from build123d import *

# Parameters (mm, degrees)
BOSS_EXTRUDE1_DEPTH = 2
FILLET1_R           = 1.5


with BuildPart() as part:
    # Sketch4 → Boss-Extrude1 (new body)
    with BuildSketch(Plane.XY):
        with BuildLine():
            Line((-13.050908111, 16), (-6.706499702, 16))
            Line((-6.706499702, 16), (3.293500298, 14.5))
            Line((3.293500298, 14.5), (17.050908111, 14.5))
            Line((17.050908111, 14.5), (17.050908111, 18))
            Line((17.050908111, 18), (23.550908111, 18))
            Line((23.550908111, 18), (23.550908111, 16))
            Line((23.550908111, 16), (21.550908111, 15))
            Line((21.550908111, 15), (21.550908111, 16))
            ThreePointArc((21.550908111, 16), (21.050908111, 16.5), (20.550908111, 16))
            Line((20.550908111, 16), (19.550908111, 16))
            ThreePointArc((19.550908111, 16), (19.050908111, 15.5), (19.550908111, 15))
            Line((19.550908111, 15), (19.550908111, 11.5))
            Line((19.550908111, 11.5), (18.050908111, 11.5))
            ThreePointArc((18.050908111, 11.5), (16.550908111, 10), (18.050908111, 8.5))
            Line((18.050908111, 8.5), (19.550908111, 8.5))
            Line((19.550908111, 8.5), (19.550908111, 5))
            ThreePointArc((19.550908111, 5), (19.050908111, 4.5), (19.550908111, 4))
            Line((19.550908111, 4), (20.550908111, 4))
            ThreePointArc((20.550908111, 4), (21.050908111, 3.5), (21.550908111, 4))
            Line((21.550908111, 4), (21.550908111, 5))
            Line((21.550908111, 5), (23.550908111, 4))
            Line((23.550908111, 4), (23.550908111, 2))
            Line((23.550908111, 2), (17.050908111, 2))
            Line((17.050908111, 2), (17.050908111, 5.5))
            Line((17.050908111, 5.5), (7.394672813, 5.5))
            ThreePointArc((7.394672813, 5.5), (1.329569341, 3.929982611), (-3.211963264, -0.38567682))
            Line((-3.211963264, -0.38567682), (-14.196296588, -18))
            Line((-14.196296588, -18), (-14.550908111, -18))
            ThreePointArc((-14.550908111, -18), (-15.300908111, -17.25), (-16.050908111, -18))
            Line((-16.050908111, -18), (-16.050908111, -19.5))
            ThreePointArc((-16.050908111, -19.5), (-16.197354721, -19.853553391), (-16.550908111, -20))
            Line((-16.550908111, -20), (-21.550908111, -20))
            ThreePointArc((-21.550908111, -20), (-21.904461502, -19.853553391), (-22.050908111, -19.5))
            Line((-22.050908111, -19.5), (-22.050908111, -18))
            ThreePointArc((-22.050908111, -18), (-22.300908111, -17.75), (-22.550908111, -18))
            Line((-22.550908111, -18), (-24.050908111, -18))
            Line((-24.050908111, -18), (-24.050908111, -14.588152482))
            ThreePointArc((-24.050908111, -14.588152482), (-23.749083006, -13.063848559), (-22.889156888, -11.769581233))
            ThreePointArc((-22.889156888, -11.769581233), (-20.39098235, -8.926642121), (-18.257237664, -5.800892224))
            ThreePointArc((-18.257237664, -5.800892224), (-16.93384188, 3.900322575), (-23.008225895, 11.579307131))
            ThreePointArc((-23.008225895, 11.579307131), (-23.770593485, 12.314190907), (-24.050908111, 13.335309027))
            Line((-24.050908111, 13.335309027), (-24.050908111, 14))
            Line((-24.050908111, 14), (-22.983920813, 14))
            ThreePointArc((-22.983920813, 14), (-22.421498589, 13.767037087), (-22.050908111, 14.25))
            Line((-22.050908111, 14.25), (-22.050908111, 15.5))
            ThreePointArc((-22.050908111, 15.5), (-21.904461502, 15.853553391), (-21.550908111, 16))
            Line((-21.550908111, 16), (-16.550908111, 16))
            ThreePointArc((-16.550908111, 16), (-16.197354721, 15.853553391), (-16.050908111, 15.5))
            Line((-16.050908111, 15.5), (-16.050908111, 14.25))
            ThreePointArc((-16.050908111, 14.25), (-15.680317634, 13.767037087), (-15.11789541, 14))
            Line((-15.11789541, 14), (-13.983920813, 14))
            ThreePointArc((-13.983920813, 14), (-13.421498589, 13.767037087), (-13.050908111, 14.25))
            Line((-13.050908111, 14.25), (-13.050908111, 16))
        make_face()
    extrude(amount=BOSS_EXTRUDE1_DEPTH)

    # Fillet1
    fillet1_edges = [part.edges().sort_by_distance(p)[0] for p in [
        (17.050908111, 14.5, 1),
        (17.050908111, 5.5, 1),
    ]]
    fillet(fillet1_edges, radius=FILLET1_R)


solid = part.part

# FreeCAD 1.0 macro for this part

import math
import FreeCAD as App
import Part
import Sketcher

V = App.Vector
Q = App.Units.Quantity


def edges_at(feature, points):
    """Names of the edges that pass closest to the given points."""
    edges = feature.Shape.Edges
    near = lambda p: min(range(len(edges)), key=lambda i: edges[i].distToShape(Part.Vertex(*p))[0])
    return sorted({f"Edge{near(p) + 1}" for p in points})

doc = App.newDocument("Part")
body = doc.addObject("PartDesign::Body", "Body")

# Sketch on XY plane
sketch1 = doc.addObject("Sketcher::SketchObject", "Sketch")
body.addObject(sketch1)
sketch1.AttachmentSupport = (doc.XY_Plane, [""])
sketch1.MapMode = "FlatFace"
sketch1.addGeometry(Part.LineSegment(V(-6.71, 16, 0), V(-13.05, 16, 0)), False)
sketch1.addGeometry(Part.LineSegment(V(-13.05, 16, 0), V(-13.05, 14.25, 0)), False)
sketch1.addGeometry(Part.ArcOfCircle(Part.Circle(V(-13.55, 14.25, 0), V(0, 0, 1), 0.5), math.radians(-150), math.radians(0)), False)
sketch1.addGeometry(Part.LineSegment(V(-13.98, 14, 0), V(-15.12, 14, 0)), False)
sketch1.addGeometry(Part.ArcOfCircle(Part.Circle(V(-15.55, 14.25, 0), V(0, 0, 1), 0.5), math.radians(180), math.radians(330)), False)
sketch1.addGeometry(Part.LineSegment(V(-16.05, 14.25, 0), V(-16.05, 15.5, 0)), False)
sketch1.addGeometry(Part.ArcOfCircle(Part.Circle(V(-16.55, 15.5, 0), V(0, 0, 1), 0.5), math.radians(0), math.radians(90)), False)
sketch1.addGeometry(Part.LineSegment(V(-16.55, 16, 0), V(-21.55, 16, 0)), False)
sketch1.addGeometry(Part.ArcOfCircle(Part.Circle(V(-21.55, 15.5, 0), V(0, 0, 1), 0.5), math.radians(90), math.radians(180)), False)
sketch1.addGeometry(Part.LineSegment(V(-22.05, 15.5, 0), V(-22.05, 14.25, 0)), False)
sketch1.addGeometry(Part.ArcOfCircle(Part.Circle(V(-22.55, 14.25, 0), V(0, 0, 1), 0.5), math.radians(-150), math.radians(0)), False)
sketch1.addGeometry(Part.LineSegment(V(-22.98, 14, 0), V(-24.05, 14, 0)), False)
sketch1.addGeometry(Part.LineSegment(V(-24.05, 14, 0), V(-24.05, 13.34, 0)), False)
sketch1.addGeometry(Part.ArcOfCircle(Part.Circle(V(-22.05, 13.34, 0), V(0, 0, 1), 2), math.radians(180), math.radians(241)), False)
sketch1.addGeometry(Part.ArcOfCircle(Part.Circle(V(-28.99, 0.6, 0), V(0, 0, 1), 12.5), math.radians(-31), math.radians(61)), False)
sketch1.addGeometry(Part.ArcOfCircle(Part.Circle(V(-44.92, 10.11, 0), V(0, 0, 1), 31.05), math.radians(-44.8), math.radians(-30.82)), False)
sketch1.addGeometry(Part.ArcOfCircle(Part.Circle(V(-20.05, -14.59, 0), V(0, 0, 1), 4), math.radians(135), math.radians(180)), False)
sketch1.addGeometry(Part.LineSegment(V(-24.05, -14.59, 0), V(-24.05, -18, 0)), False)
sketch1.addGeometry(Part.LineSegment(V(-24.05, -18, 0), V(-22.55, -18, 0)), False)
sketch1.addGeometry(Part.ArcOfCircle(Part.Circle(V(-22.3, -18, 0), V(0, 0, 1), 0.25), math.radians(0), math.radians(180)), False)
sketch1.addGeometry(Part.LineSegment(V(-22.05, -18, 0), V(-22.05, -19.5, 0)), False)
sketch1.addGeometry(Part.ArcOfCircle(Part.Circle(V(-21.55, -19.5, 0), V(0, 0, 1), 0.5), math.radians(180), math.radians(270)), False)
sketch1.addGeometry(Part.LineSegment(V(-21.55, -20, 0), V(-16.55, -20, 0)), False)
sketch1.addGeometry(Part.ArcOfCircle(Part.Circle(V(-16.55, -19.5, 0), V(0, 0, 1), 0.5), math.radians(-90), math.radians(0)), False)
sketch1.addGeometry(Part.LineSegment(V(-16.05, -19.5, 0), V(-16.05, -18, 0)), False)
sketch1.addGeometry(Part.ArcOfCircle(Part.Circle(V(-15.3, -18, 0), V(0, 0, 1), 0.75), math.radians(0), math.radians(180)), False)
sketch1.addGeometry(Part.LineSegment(V(-14.55, -18, 0), V(-14.2, -18, 0)), False)
sketch1.addGeometry(Part.LineSegment(V(-14.2, -18, 0), V(-3.21, -0.39, 0)), False)
sketch1.addGeometry(Part.ArcOfCircle(Part.Circle(V(7.39, -7, 0), V(0, 0, 1), 12.5), math.radians(90), math.radians(148)), False)
sketch1.addGeometry(Part.LineSegment(V(7.39, 5.5, 0), V(17.05, 5.5, 0)), False)
sketch1.addGeometry(Part.LineSegment(V(17.05, 5.5, 0), V(17.05, 2, 0)), False)
sketch1.addGeometry(Part.LineSegment(V(17.05, 2, 0), V(23.55, 2, 0)), False)
sketch1.addGeometry(Part.LineSegment(V(23.55, 2, 0), V(23.55, 4, 0)), False)
sketch1.addGeometry(Part.LineSegment(V(23.55, 4, 0), V(21.55, 5, 0)), False)
sketch1.addGeometry(Part.LineSegment(V(21.55, 5, 0), V(21.55, 4, 0)), False)
sketch1.addGeometry(Part.ArcOfCircle(Part.Circle(V(21.05, 4, 0), V(0, 0, 1), 0.5), math.radians(180), math.radians(360)), False)
sketch1.addGeometry(Part.LineSegment(V(20.55, 4, 0), V(19.55, 4, 0)), False)
sketch1.addGeometry(Part.ArcOfCircle(Part.Circle(V(19.55, 4.5, 0), V(0, 0, 1), 0.5), math.radians(90), math.radians(270)), False)
sketch1.addGeometry(Part.LineSegment(V(19.55, 5, 0), V(19.55, 8.5, 0)), False)
sketch1.addGeometry(Part.LineSegment(V(19.55, 8.5, 0), V(18.05, 8.5, 0)), False)
sketch1.addGeometry(Part.ArcOfCircle(Part.Circle(V(18.05, 10, 0), V(0, 0, 1), 1.5), math.radians(90), math.radians(270)), False)
sketch1.addGeometry(Part.LineSegment(V(18.05, 11.5, 0), V(19.55, 11.5, 0)), False)
sketch1.addGeometry(Part.LineSegment(V(19.55, 11.5, 0), V(19.55, 15, 0)), False)
sketch1.addGeometry(Part.ArcOfCircle(Part.Circle(V(19.55, 15.5, 0), V(0, 0, 1), 0.5), math.radians(90), math.radians(270)), False)
sketch1.addGeometry(Part.LineSegment(V(19.55, 16, 0), V(20.55, 16, 0)), False)
sketch1.addGeometry(Part.ArcOfCircle(Part.Circle(V(21.05, 16, 0), V(0, 0, 1), 0.5), math.radians(0), math.radians(180)), False)
sketch1.addGeometry(Part.LineSegment(V(21.55, 16, 0), V(21.55, 15, 0)), False)
sketch1.addGeometry(Part.LineSegment(V(21.55, 15, 0), V(23.55, 16, 0)), False)
sketch1.addGeometry(Part.LineSegment(V(23.55, 16, 0), V(23.55, 18, 0)), False)
sketch1.addGeometry(Part.LineSegment(V(23.55, 18, 0), V(17.05, 18, 0)), False)
sketch1.addGeometry(Part.LineSegment(V(17.05, 18, 0), V(17.05, 14.5, 0)), False)
sketch1.addGeometry(Part.LineSegment(V(17.05, 14.5, 0), V(3.29, 14.5, 0)), False)
sketch1.addGeometry(Part.LineSegment(V(3.29, 14.5, 0), V(-6.71, 16, 0)), False)
sketch1.addConstraint(Sketcher.Constraint("Coincident", 0, 2, 1, 1))
sketch1.addConstraint(Sketcher.Constraint("Tangent", 1, 2, 2, 2))
sketch1.addConstraint(Sketcher.Constraint("Coincident", 2, 1, 3, 1))
sketch1.addConstraint(Sketcher.Constraint("Coincident", 3, 2, 4, 2))
sketch1.addConstraint(Sketcher.Constraint("Tangent", 4, 1, 5, 1))
sketch1.addConstraint(Sketcher.Constraint("Tangent", 5, 2, 6, 1))
sketch1.addConstraint(Sketcher.Constraint("Tangent", 6, 2, 7, 1))
sketch1.addConstraint(Sketcher.Constraint("Tangent", 7, 2, 8, 1))
sketch1.addConstraint(Sketcher.Constraint("Tangent", 8, 2, 9, 1))
sketch1.addConstraint(Sketcher.Constraint("Tangent", 9, 2, 10, 2))
sketch1.addConstraint(Sketcher.Constraint("Coincident", 10, 1, 11, 1))
sketch1.addConstraint(Sketcher.Constraint("Coincident", 11, 2, 12, 1))
sketch1.addConstraint(Sketcher.Constraint("Tangent", 12, 2, 13, 1))
sketch1.addConstraint(Sketcher.Constraint("Tangent", 13, 2, 14, 2))
sketch1.addConstraint(Sketcher.Constraint("Tangent", 14, 1, 15, 2))
sketch1.addConstraint(Sketcher.Constraint("Tangent", 15, 1, 16, 1))
sketch1.addConstraint(Sketcher.Constraint("Tangent", 16, 2, 17, 1))
sketch1.addConstraint(Sketcher.Constraint("Coincident", 17, 2, 18, 1))
sketch1.addConstraint(Sketcher.Constraint("Coincident", 18, 2, 19, 2))
sketch1.addConstraint(Sketcher.Constraint("Tangent", 19, 1, 20, 1))
sketch1.addConstraint(Sketcher.Constraint("Tangent", 20, 2, 21, 1))
sketch1.addConstraint(Sketcher.Constraint("Tangent", 21, 2, 22, 1))
sketch1.addConstraint(Sketcher.Constraint("Tangent", 22, 2, 23, 1))
sketch1.addConstraint(Sketcher.Constraint("Tangent", 23, 2, 24, 1))
sketch1.addConstraint(Sketcher.Constraint("Tangent", 24, 2, 25, 2))
sketch1.addConstraint(Sketcher.Constraint("Coincident", 25, 1, 26, 1))
sketch1.addConstraint(Sketcher.Constraint("Coincident", 26, 2, 27, 1))
sketch1.addConstraint(Sketcher.Constraint("Tangent", 27, 2, 28, 2))
sketch1.addConstraint(Sketcher.Constraint("Tangent", 28, 1, 29, 1))
sketch1.addConstraint(Sketcher.Constraint("Coincident", 29, 2, 30, 1))
sketch1.addConstraint(Sketcher.Constraint("Coincident", 30, 2, 31, 1))
sketch1.addConstraint(Sketcher.Constraint("Coincident", 31, 2, 32, 1))
sketch1.addConstraint(Sketcher.Constraint("Coincident", 32, 2, 33, 1))
sketch1.addConstraint(Sketcher.Constraint("Coincident", 33, 2, 34, 1))
sketch1.addConstraint(Sketcher.Constraint("Tangent", 34, 2, 35, 2))
sketch1.addConstraint(Sketcher.Constraint("Coincident", 35, 1, 36, 1))
sketch1.addConstraint(Sketcher.Constraint("Tangent", 36, 2, 37, 2))
sketch1.addConstraint(Sketcher.Constraint("Coincident", 37, 1, 38, 1))
sketch1.addConstraint(Sketcher.Constraint("Coincident", 38, 2, 39, 1))
sketch1.addConstraint(Sketcher.Constraint("Tangent", 39, 2, 40, 2))
sketch1.addConstraint(Sketcher.Constraint("Tangent", 40, 1, 41, 1))
sketch1.addConstraint(Sketcher.Constraint("Coincident", 41, 2, 42, 1))
sketch1.addConstraint(Sketcher.Constraint("Coincident", 42, 2, 43, 2))
sketch1.addConstraint(Sketcher.Constraint("Tangent", 43, 1, 44, 1))
sketch1.addConstraint(Sketcher.Constraint("Coincident", 44, 2, 45, 2))
sketch1.addConstraint(Sketcher.Constraint("Tangent", 45, 1, 46, 1))
sketch1.addConstraint(Sketcher.Constraint("Coincident", 46, 2, 47, 1))
sketch1.addConstraint(Sketcher.Constraint("Coincident", 47, 2, 48, 1))
sketch1.addConstraint(Sketcher.Constraint("Coincident", 48, 2, 49, 1))
sketch1.addConstraint(Sketcher.Constraint("Coincident", 49, 2, 50, 1))
sketch1.addConstraint(Sketcher.Constraint("Coincident", 50, 2, 51, 1))
sketch1.addConstraint(Sketcher.Constraint("Coincident", 51, 2, 52, 1))
sketch1.addConstraint(Sketcher.Constraint("Coincident", 52, 2, 0, 1))
sketch1.addConstraint(Sketcher.Constraint("Horizontal", 0))
sketch1.addConstraint(Sketcher.Constraint("Vertical", 1))
sketch1.addConstraint(Sketcher.Constraint("Horizontal", 3))
sketch1.addConstraint(Sketcher.Constraint("Vertical", 5))
sketch1.addConstraint(Sketcher.Constraint("Horizontal", 7))
sketch1.addConstraint(Sketcher.Constraint("Vertical", 9))
sketch1.addConstraint(Sketcher.Constraint("Horizontal", 11))
sketch1.addConstraint(Sketcher.Constraint("Vertical", 12))
sketch1.addConstraint(Sketcher.Constraint("Vertical", 17))
sketch1.addConstraint(Sketcher.Constraint("Horizontal", 18))
sketch1.addConstraint(Sketcher.Constraint("Vertical", 20))
sketch1.addConstraint(Sketcher.Constraint("Horizontal", 22))
sketch1.addConstraint(Sketcher.Constraint("Vertical", 24))
sketch1.addConstraint(Sketcher.Constraint("Horizontal", 26))
sketch1.addConstraint(Sketcher.Constraint("Horizontal", 29))
sketch1.addConstraint(Sketcher.Constraint("Vertical", 30))
sketch1.addConstraint(Sketcher.Constraint("Horizontal", 31))
sketch1.addConstraint(Sketcher.Constraint("Vertical", 32))
sketch1.addConstraint(Sketcher.Constraint("Vertical", 34))
sketch1.addConstraint(Sketcher.Constraint("Horizontal", 36))
sketch1.addConstraint(Sketcher.Constraint("Vertical", 38))
sketch1.addConstraint(Sketcher.Constraint("Horizontal", 39))
sketch1.addConstraint(Sketcher.Constraint("Horizontal", 41))
sketch1.addConstraint(Sketcher.Constraint("Vertical", 42))
sketch1.addConstraint(Sketcher.Constraint("Horizontal", 44))
sketch1.addConstraint(Sketcher.Constraint("Vertical", 46))
sketch1.addConstraint(Sketcher.Constraint("Vertical", 48))
sketch1.addConstraint(Sketcher.Constraint("Horizontal", 49))
sketch1.addConstraint(Sketcher.Constraint("Vertical", 50))
sketch1.addConstraint(Sketcher.Constraint("Horizontal", 51))
sketch1.addConstraint(Sketcher.Constraint("Equal", 2, 4))
sketch1.addConstraint(Sketcher.Constraint("Equal", 4, 6))
sketch1.addConstraint(Sketcher.Constraint("Equal", 6, 8))
sketch1.addConstraint(Sketcher.Constraint("Equal", 8, 10))
sketch1.addConstraint(Sketcher.Constraint("Equal", 10, 21))
sketch1.addConstraint(Sketcher.Constraint("Equal", 21, 23))
sketch1.addConstraint(Sketcher.Constraint("Equal", 14, 28))
sketch1.addConstraint(Sketcher.Constraint("Equal", 23, 35))
sketch1.addConstraint(Sketcher.Constraint("Equal", 35, 37))
sketch1.addConstraint(Sketcher.Constraint("Equal", 37, 43))
sketch1.addConstraint(Sketcher.Constraint("Equal", 43, 45))
sketch1.addConstraint(Sketcher.Constraint("Symmetric", 7, 2, 45, 1, -2))
sketch1.addConstraint(Sketcher.Constraint("Horizontal", 2, 3, 4, 3))
sketch1.addConstraint(Sketcher.Constraint("Horizontal", 4, 3, 10, 3))
sketch1.addConstraint(Sketcher.Constraint("Horizontal", 19, 3, 25, 3))
sketch1.addConstraint(Sketcher.Constraint("Horizontal", 8, 3, 43, 3))
sketch1.addConstraint(Sketcher.Constraint("Horizontal", 45, 3, 0, 2))
sketch1.addConstraint(Sketcher.Constraint("Horizontal", 3, 2, 10, 1))
sketch1.addConstraint(Sketcher.Constraint("Horizontal", 25, 3, 17, 2))
sketch1.addConstraint(Sketcher.Constraint("Horizontal", 24, 2, 25, 1))
sketch1.addConstraint(Sketcher.Constraint("Horizontal", 35, 3, 32, 2))
sketch1.addConstraint(Sketcher.Constraint("Horizontal", 34, 2, 35, 1))
sketch1.addConstraint(Sketcher.Constraint("Horizontal", 33, 2, 37, 1))
sketch1.addConstraint(Sketcher.Constraint("Horizontal", 42, 2, 46, 2))
sketch1.addConstraint(Sketcher.Constraint("Horizontal", 45, 1, 47, 2))
sketch1.addConstraint(Sketcher.Constraint("Vertical", 8, 3, 21, 3))
sketch1.addConstraint(Sketcher.Constraint("Vertical", 6, 3, 23, 3))
sketch1.addConstraint(Sketcher.Constraint("Vertical", 37, 3, 43, 3))
sketch1.addConstraint(Sketcher.Constraint("Vertical", 35, 3, 45, 3))
sketch1.addConstraint(Sketcher.Constraint("Vertical", 13, 3, 8, 2))
sketch1.addConstraint(Sketcher.Constraint("Vertical", 12, 2, 16, 2))
sketch1.addConstraint(Sketcher.Constraint("Vertical", 10, 3, 18, 2))
sketch1.addConstraint(Sketcher.Constraint("Vertical", 36, 2, 37, 1))
sketch1.addConstraint(Sketcher.Constraint("Vertical", 38, 2, 41, 2))
sketch1.addConstraint(Sketcher.Constraint("Vertical", 32, 2, 47, 2))
sketch1.addConstraint(Sketcher.Constraint("Vertical", 30, 2, 49, 2))
sketch1.addConstraint(Sketcher.Constraint("Equal", 18, 39))
sketch1.addConstraint(Sketcher.Constraint("Equal", 41, 20))
sketch1.addConstraint(Sketcher.Constraint("Equal", 44, 34))
sketch1.addConstraint(Sketcher.Constraint("Equal", 30, 38))
sketch1.addConstraint(Sketcher.Constraint("Equal", 38, 42))
sketch1.addConstraint(Sketcher.Constraint("Equal", 32, 48))
sketch1.addConstraint(Sketcher.Constraint("Equal", 42, 50))
sketch1.addConstraint(Sketcher.Constraint("Radius", 13, Q("2 mm")))
sketch1.addConstraint(Sketcher.Constraint("Radius", 16, Q("4 mm")))
sketch1.addConstraint(Sketcher.Constraint("Radius", 2, Q("0.5 mm")))
sketch1.addConstraint(Sketcher.Constraint("Radius", 14, Q("12.5 mm")))
sketch1.addConstraint(Sketcher.Constraint("Radius", 40, Q("1.5 mm")))
sketch1.addConstraint(Sketcher.Constraint("DistanceX", 7, 2, 7, 1, Q("5 mm")))
sketch1.addConstraint(Sketcher.Constraint("DistanceY", 32, 1, 32, 2, Q("2 mm")))
sketch1.addConstraint(Sketcher.Constraint("Radius", 25, Q("0.75 mm")))
sketch1.addConstraint(Sketcher.Constraint("DistanceX", 31, 1, 31, 2, Q("6.5 mm")))
sketch1.addConstraint(Sketcher.Constraint("DistanceY", 30, 2, 30, 1, Q("3.5 mm")))
sketch1.addConstraint(Sketcher.Constraint("DistanceY", 19, 3, -1, 1, Q("18 mm")))
sketch1.addConstraint(Sketcher.Constraint("DistanceY", 28, 3, -1, 1, Q("7 mm")))
sketch1.addConstraint(Sketcher.Constraint("DistanceY", -1, 1, 2, 1, Q("14 mm")))
sketch1.addConstraint(Sketcher.Constraint("DistanceY", 1, 2, 1, 1, Q("1.75 mm")))
sketch1.addConstraint(Sketcher.Constraint("Radius", 15, Q("31.05008 mm")))
sketch1.addConstraint(Sketcher.Constraint("DistanceX", 0, 2, 0, 1, Q("6.344408 mm")))
sketch1.addConstraint(Sketcher.Constraint("DistanceX", 26, 1, 26, 2, Q("0.354612 mm")))
sketch1.addConstraint(Sketcher.Constraint("DistanceY", 12, 2, 12, 1, Q("0.664691 mm")))
sketch1.addConstraint(Sketcher.Constraint("DistanceX", -1, 1, 51, 2, Q("3.2935 mm")))
sketch1.addConstraint(Sketcher.Constraint("DistanceX", 52, 2, -1, 1, Q("6.7065 mm")))
sketch1.addConstraint(Sketcher.Constraint("Distance", 27, Q("20.758612 mm")))
sketch1.addConstraint(Sketcher.Constraint("DistanceX", 3, 2, 3, 1, Q("1.133975 mm")))
sketch1.addConstraint(Sketcher.Constraint("DistanceX", 29, 1, 29, 2, Q("9.656235 mm")))
sketch1.addConstraint(Sketcher.Constraint("DistanceY", 17, 2, 17, 1, Q("3.411848 mm")))
sketch1.addConstraint(Sketcher.Constraint("DistanceX", 15, 3, -1, 1, Q("44.92112 mm")))
pad1 = doc.addObject("PartDesign::Pad", "Pad")
body.addObject(pad1)
pad1.Profile = sketch1
pad1.Length = 2
doc.recompute()

fillet = doc.addObject("PartDesign::Fillet", "Fillet")
body.addObject(fillet)
fillet.Base = (pad1, edges_at(pad1, [(17.051, 14.5, 1), (17.051, 5.5, 1)]))
fillet.Radius = 1.5

doc.recompute()
